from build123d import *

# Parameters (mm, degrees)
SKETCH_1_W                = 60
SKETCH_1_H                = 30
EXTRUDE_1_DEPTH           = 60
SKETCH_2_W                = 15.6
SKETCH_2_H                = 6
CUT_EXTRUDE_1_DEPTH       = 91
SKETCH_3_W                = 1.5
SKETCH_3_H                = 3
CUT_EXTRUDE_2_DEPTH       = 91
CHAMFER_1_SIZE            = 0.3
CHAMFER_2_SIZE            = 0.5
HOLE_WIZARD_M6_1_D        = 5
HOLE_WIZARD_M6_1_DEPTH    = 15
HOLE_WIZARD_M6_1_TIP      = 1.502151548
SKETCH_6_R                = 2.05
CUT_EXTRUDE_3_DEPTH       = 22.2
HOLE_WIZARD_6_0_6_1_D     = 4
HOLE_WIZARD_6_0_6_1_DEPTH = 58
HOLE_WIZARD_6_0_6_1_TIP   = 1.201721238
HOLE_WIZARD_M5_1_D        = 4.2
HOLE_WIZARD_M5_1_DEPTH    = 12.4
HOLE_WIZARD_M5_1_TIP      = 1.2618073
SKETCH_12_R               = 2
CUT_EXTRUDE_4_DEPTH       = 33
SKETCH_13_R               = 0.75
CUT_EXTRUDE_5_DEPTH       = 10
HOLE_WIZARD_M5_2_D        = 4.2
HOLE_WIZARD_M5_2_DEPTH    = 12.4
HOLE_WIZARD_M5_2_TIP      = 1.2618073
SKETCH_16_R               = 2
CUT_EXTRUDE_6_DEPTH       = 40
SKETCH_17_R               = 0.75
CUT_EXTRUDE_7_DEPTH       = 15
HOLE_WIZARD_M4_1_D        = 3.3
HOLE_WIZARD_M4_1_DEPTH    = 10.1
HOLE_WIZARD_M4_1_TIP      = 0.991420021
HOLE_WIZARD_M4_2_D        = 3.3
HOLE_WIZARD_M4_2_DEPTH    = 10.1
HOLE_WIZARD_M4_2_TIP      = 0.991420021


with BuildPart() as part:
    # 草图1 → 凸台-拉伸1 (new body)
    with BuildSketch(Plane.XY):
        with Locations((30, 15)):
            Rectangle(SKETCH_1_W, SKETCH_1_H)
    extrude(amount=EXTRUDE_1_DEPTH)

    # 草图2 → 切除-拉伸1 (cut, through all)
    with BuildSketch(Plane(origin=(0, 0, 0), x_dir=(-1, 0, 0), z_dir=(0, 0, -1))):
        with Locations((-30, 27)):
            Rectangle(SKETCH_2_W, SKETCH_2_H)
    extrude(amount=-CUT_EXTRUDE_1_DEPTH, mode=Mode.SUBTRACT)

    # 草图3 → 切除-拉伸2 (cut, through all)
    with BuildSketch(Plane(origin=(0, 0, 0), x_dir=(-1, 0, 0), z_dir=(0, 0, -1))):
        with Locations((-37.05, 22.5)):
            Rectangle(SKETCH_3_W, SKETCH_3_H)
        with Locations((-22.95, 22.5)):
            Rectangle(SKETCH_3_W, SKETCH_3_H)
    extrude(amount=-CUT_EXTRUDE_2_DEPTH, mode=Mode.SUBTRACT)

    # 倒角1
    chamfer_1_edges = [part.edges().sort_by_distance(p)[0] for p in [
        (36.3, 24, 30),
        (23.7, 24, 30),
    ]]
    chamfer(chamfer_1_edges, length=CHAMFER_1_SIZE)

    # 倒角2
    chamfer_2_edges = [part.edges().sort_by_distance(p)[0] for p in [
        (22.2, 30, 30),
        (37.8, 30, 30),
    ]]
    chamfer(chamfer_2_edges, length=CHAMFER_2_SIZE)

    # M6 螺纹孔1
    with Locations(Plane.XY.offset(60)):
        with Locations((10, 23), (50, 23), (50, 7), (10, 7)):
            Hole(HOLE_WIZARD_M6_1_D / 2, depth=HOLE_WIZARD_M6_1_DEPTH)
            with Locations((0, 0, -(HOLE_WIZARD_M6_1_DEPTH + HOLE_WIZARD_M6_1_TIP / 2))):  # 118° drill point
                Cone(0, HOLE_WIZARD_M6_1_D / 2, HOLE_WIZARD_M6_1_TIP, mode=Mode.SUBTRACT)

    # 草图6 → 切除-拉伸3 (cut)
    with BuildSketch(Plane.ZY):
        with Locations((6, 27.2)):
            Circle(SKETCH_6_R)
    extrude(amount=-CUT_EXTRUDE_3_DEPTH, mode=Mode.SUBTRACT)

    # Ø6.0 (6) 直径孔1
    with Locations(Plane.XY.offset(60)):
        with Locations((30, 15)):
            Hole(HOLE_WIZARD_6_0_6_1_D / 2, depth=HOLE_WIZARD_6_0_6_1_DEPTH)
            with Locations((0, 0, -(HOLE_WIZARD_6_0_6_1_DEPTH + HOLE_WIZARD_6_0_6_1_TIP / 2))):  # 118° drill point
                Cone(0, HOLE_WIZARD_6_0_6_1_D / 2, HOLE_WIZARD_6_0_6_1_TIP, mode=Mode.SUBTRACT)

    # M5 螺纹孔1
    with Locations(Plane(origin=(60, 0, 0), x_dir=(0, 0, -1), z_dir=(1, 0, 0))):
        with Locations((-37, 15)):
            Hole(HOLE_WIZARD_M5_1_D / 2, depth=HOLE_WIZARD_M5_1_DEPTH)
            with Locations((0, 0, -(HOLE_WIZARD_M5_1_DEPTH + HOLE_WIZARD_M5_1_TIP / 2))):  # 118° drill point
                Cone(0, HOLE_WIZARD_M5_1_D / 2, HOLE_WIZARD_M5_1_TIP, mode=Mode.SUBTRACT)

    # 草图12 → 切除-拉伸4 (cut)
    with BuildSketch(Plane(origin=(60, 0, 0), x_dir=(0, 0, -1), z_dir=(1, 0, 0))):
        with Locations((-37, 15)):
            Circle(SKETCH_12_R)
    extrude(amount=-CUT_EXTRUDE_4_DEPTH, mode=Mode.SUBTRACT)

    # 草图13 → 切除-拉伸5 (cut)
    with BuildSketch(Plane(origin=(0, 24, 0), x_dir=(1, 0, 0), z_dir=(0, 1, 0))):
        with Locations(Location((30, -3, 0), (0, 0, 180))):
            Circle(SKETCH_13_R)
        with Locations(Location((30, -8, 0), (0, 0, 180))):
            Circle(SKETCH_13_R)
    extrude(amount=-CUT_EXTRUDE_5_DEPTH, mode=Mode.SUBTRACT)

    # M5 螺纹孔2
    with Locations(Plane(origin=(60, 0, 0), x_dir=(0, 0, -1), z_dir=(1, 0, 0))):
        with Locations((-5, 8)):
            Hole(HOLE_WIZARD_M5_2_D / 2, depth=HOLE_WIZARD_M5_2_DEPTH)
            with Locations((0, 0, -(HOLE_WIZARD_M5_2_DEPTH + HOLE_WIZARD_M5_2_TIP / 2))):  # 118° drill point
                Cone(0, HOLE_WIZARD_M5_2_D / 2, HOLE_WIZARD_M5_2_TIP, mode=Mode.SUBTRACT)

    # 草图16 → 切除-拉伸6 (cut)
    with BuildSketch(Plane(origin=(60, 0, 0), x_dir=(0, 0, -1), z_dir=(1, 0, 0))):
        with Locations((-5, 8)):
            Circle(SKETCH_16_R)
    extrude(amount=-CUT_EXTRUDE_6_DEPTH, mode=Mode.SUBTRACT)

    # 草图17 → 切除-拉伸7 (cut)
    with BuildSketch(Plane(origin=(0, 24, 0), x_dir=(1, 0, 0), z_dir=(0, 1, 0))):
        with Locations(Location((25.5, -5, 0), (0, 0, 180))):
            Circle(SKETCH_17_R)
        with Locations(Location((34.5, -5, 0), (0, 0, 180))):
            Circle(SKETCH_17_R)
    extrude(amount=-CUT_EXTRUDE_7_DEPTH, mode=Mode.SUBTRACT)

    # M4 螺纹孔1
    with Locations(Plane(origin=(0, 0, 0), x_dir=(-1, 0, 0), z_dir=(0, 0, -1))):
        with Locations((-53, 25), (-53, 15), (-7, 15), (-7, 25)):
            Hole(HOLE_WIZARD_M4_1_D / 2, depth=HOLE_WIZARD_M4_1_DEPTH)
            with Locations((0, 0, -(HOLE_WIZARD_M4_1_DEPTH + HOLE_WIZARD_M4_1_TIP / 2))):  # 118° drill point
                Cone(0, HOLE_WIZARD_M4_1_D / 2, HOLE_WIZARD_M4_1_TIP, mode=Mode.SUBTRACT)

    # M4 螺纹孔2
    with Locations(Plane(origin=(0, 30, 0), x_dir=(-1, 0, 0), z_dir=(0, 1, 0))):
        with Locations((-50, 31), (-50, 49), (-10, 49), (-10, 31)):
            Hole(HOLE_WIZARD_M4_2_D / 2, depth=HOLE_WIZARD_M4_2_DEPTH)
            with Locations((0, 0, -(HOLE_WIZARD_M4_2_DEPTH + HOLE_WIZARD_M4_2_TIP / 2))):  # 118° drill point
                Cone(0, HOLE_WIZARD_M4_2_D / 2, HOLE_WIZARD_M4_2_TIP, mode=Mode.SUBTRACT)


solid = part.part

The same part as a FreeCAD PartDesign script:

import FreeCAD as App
import Part
import Sketcher
Q = App.Units.Quantity


def edges_at(feature, points):
    """Names of the edges that pass closest to the given points."""
    edges = feature.Shape.Edges
    near = lambda p: min(range(len(edges)), key=lambda i: edges[i].distToShape(Part.Vertex(*p))[0])
    return sorted({f"Edge{near(p) + 1}" for p in points})

doc = App.newDocument("Part")
params = doc.addObject("Spreadsheet::Sheet", "Params")
for row, (alias, value) in enumerate([
    ("sketch1_width", "60 mm"),
    ("sketch1_height", "30 mm"),
    ("pad1_length", "60 mm"),
    ("sketch2_height", "6 mm"),
    ("sketch2_width", "15.6 mm"),
    ("sketch3_height", "3 mm"),
    ("sketch3_width", "1.5 mm"),
    ("chamfer_size", "0.3 mm"),
    ("chamfer2_size", "0.5 mm"),
    ("sketch4_diameter", "5 mm"),
    ("hole_diameter", "5 mm"),
    ("hole_depth", "15 mm"),
    ("sketch5_diameter", "4.1 mm"),
    ("pocket3_length", "22.2 mm"),
    ("sketch6_diameter", "4 mm"),
    ("hole2_diameter", "4 mm"),
    ("hole2_depth", "58 mm"),
    ("sketch7_diameter", "4.2 mm"),
    ("hole3_diameter", "4.2 mm"),
    ("hole3_depth", "12.4 mm"),
    ("sketch8_diameter", "4 mm"),
    ("pocket4_length", "33 mm"),
    ("sketch9_diameter", "1.5 mm"),
    ("pocket5_length", "10 mm"),
    ("sketch10_diameter", "4.2 mm"),
    ("hole4_diameter", "4.2 mm"),
    ("hole4_depth", "12.4 mm"),
    ("sketch11_diameter", "4 mm"),
    ("pocket6_length", "40 mm"),
    ("sketch12_diameter", "1.5 mm"),
    ("pocket7_length", "15 mm"),
    ("sketch13_diameter", "3.3 mm"),
    ("hole5_diameter", "3.3 mm"),
    ("hole5_depth", "10.1 mm"),
    ("sketch14_diameter", "3.3 mm"),
    ("hole6_diameter", "3.3 mm"),
    ("hole6_depth", "10.1 mm"),
], start=1):
    params.set(f"A{row}", alias)
    params.set(f"B{row}", "=" + value)
    params.setAlias(f"B{row}", alias)

body = doc.addObject("PartDesign::Body", "Body")

sketch1 = body.newObject("Sketcher::SketchObject", "Sketch")
sketch1.AttachmentSupport = (doc.getObject("XY_Plane"), [""])
sketch1.MapMode = "FlatFace"
sketch1.addGeometry([
    Part.LineSegment(App.Vector(0, 30, 0), App.Vector(0, 0, 0)),
    Part.LineSegment(App.Vector(0, 0, 0), App.Vector(60, 0, 0)),
    Part.LineSegment(App.Vector(60, 0, 0), App.Vector(60, 30, 0)),
    Part.LineSegment(App.Vector(60, 30, 0), App.Vector(0, 30, 0)),
], False)
sketch1.addConstraint([
    Sketcher.Constraint("Coincident", 0, 2, 1, 1),
    Sketcher.Constraint("Coincident", 1, 2, 2, 1),
    Sketcher.Constraint("Coincident", 2, 2, 3, 1),
    Sketcher.Constraint("Coincident", 3, 2, 0, 1),
    Sketcher.Constraint("Vertical", 0),
    Sketcher.Constraint("Horizontal", 1),
    Sketcher.Constraint("Vertical", 2),
    Sketcher.Constraint("Horizontal", 3),
    Sketcher.Constraint("Coincident", 0, 2, -1, 1),
    Sketcher.Constraint("DistanceX", 1, 1, 1, 2, Q("60 mm")),
    Sketcher.Constraint("DistanceY", 0, 2, 0, 1, Q("30 mm")),
])
sketch1.setExpression("Constraints[9]", "Params.sketch1_width")
sketch1.setExpression("Constraints[10]", "Params.sketch1_height")
pad1 = body.newObject("PartDesign::Pad", "Pad")
pad1.Profile = sketch1
pad1.setExpression("Length", "Params.pad1_length")

sketch2 = body.newObject("Sketcher::SketchObject", "Sketch001")
sketch2.AttachmentSupport = (doc.getObject("XY_Plane"), [""])
sketch2.MapMode = "FlatFace"
sketch2.addGeometry([
    Part.LineSegment(App.Vector(38, 30, 0), App.Vector(38, 24, 0)),
    Part.LineSegment(App.Vector(38, 24, 0), App.Vector(22, 24, 0)),
    Part.LineSegment(App.Vector(22, 24, 0), App.Vector(22, 30, 0)),
    Part.LineSegment(App.Vector(22, 30, 0), App.Vector(38, 30, 0)),
], False)
sketch2.addConstraint([
    Sketcher.Constraint("Coincident", 0, 2, 1, 1),
    Sketcher.Constraint("Coincident", 1, 2, 2, 1),
    Sketcher.Constraint("Coincident", 2, 2, 3, 1),
    Sketcher.Constraint("Coincident", 3, 2, 0, 1),
    Sketcher.Constraint("Vertical", 0),
    Sketcher.Constraint("Horizontal", 1),
    Sketcher.Constraint("Vertical", 2),
    Sketcher.Constraint("Horizontal", 3),
    Sketcher.Constraint("DistanceY", 0, 2, 0, 1, Q("6 mm")),
    Sketcher.Constraint("DistanceX", 1, 2, 1, 1, Q("15.6 mm")),
    Sketcher.Constraint("DistanceY", -1, 1, 0, 2, Q("24 mm")),
    Sketcher.Constraint("DistanceX", -1, 1, 0, 2, Q("37.8 mm")),
])
sketch2.setExpression("Constraints[8]", "Params.sketch2_height")
sketch2.setExpression("Constraints[9]", "Params.sketch2_width")
pocket1 = body.newObject("PartDesign::Pocket", "Pocket")
pocket1.Profile = sketch2
pocket1.Type = "ThroughAll"
pocket1.Reversed = True

sketch3 = body.newObject("Sketcher::SketchObject", "Sketch002")
sketch3.AttachmentSupport = (doc.getObject("XY_Plane"), [""])
sketch3.MapMode = "FlatFace"
sketch3.addGeometry([
    Part.LineSegment(App.Vector(37.8, 24, 0), App.Vector(37.8, 21, 0)),
    Part.LineSegment(App.Vector(37.8, 21, 0), App.Vector(36.3, 21, 0)),
    Part.LineSegment(App.Vector(36.3, 21, 0), App.Vector(36.3, 24, 0)),
    Part.LineSegment(App.Vector(36.3, 24, 0), App.Vector(37.8, 24, 0)),
    Part.LineSegment(App.Vector(23.7, 24, 0), App.Vector(23.7, 21, 0)),
    Part.LineSegment(App.Vector(23.7, 21, 0), App.Vector(22.2, 21, 0)),
    Part.LineSegment(App.Vector(22.2, 21, 0), App.Vector(22.2, 24, 0)),
    Part.LineSegment(App.Vector(22.2, 24, 0), App.Vector(23.7, 24, 0)),
], False)
sketch3.addConstraint([
    Sketcher.Constraint("Coincident", 0, 2, 1, 1),
    Sketcher.Constraint("Coincident", 1, 2, 2, 1),
    Sketcher.Constraint("Coincident", 2, 2, 3, 1),
    Sketcher.Constraint("Coincident", 3, 2, 0, 1),
    Sketcher.Constraint("Coincident", 4, 2, 5, 1),
    Sketcher.Constraint("Coincident", 5, 2, 6, 1),
    Sketcher.Constraint("Coincident", 6, 2, 7, 1),
    Sketcher.Constraint("Coincident", 7, 2, 4, 1),
    Sketcher.Constraint("Vertical", 0),
    Sketcher.Constraint("Horizontal", 1),
    Sketcher.Constraint("Vertical", 2),
    Sketcher.Constraint("Horizontal", 3),
    Sketcher.Constraint("Vertical", 4),
    Sketcher.Constraint("Horizontal", 5),
    Sketcher.Constraint("Vertical", 6),
    Sketcher.Constraint("Horizontal", 7),
    Sketcher.Constraint("Horizontal", 1, 2, 4, 2),
    Sketcher.Constraint("Horizontal", 3, 2, 6, 2),
    Sketcher.Constraint("Equal", 3, 5),
    Sketcher.Constraint("DistanceY", 0, 2, 0, 1, Q("3 mm")),
    Sketcher.Constraint("DistanceX", 1, 2, 1, 1, Q("1.5 mm")),
    Sketcher.Constraint("DistanceY", -1, 1, 0, 2, Q("21 mm")),
    Sketcher.Constraint("DistanceX", -1, 1, 0, 2, Q("37.8 mm")),
    Sketcher.Constraint("DistanceX", -1, 1, 4, 2, Q("23.7 mm")),
])
sketch3.setExpression("Constraints[19]", "Params.sketch3_height")
sketch3.setExpression("Constraints[20]", "Params.sketch3_width")
pocket2 = body.newObject("PartDesign::Pocket", "Pocket001")
pocket2.Profile = sketch3
pocket2.Type = "ThroughAll"
pocket2.Reversed = True
doc.recompute()

chamfer = body.newObject("PartDesign::Chamfer", "Chamfer")
chamfer.Base = (pocket2, edges_at(pocket2, [(36.3, 24, 30), (23.7, 24, 30)]))
chamfer.setExpression("Size", "Params.chamfer_size")
doc.recompute()

chamfer2 = body.newObject("PartDesign::Chamfer", "Chamfer001")
chamfer2.Base = (chamfer, edges_at(chamfer, [(22.2, 30, 30), (37.8, 30, 30)]))
chamfer2.setExpression("Size", "Params.chamfer2_size")

sketch4 = body.newObject("Sketcher::SketchObject", "Sketch003")
sketch4.AttachmentSupport = (doc.getObject("XY_Plane"), [""])
sketch4.MapMode = "FlatFace"
sketch4.AttachmentOffset = App.Placement(App.Vector(0, 0, 60), App.Rotation())
sketch4.addGeometry([
    Part.Circle(App.Vector(10, 23, 0), App.Vector(0, 0, 1), 2.5),
    Part.Circle(App.Vector(50, 23, 0), App.Vector(0, 0, 1), 2.5),
    Part.Circle(App.Vector(50, 7, 0), App.Vector(0, 0, 1), 2.5),
    Part.Circle(App.Vector(10, 7, 0), App.Vector(0, 0, 1), 2.5),
], False)
sketch4.addConstraint([
    Sketcher.Constraint("Equal", 0, 1),
    Sketcher.Constraint("Equal", 1, 2),
    Sketcher.Constraint("Equal", 2, 3),
    Sketcher.Constraint("Horizontal", 0, 3, 1, 3),
    Sketcher.Constraint("Horizontal", 2, 3, 3, 3),
    Sketcher.Constraint("Vertical", 1, 3, 2, 3),
    Sketcher.Constraint("Vertical", 0, 3, 3, 3),
    Sketcher.Constraint("Diameter", 0, Q("5 mm")),
    Sketcher.Constraint("DistanceX", -1, 1, 0, 3, Q("10 mm")),
    Sketcher.Constraint("DistanceY", -1, 1, 0, 3, Q("23 mm")),
    Sketcher.Constraint("DistanceX", -1, 1, 1, 3, Q("50 mm")),
    Sketcher.Constraint("DistanceY", -1, 1, 2, 3, Q("7 mm")),
])
sketch4.setExpression("Constraints[7]", "Params.sketch4_diameter")
doc.recompute()
hole = body.newObject("PartDesign::Hole", "Hole")
hole.Profile = sketch4
hole.ThreadType = "None"
hole.setExpression("Diameter", "Params.hole_diameter")
hole.DepthType = "Dimension"
hole.setExpression("Depth", "Params.hole_depth")
hole.DrillPoint = "Angled"
hole.DrillPointAngle = 118

sketch5 = body.newObject("Sketcher::SketchObject", "Sketch004")
sketch5.AttachmentSupport = (doc.getObject("YZ_Plane"), [""])
sketch5.MapMode = "FlatFace"
sketch5.addGeometry(Part.Circle(App.Vector(27.2, 6, 0), App.Vector(0, 0, 1), 2), False)
sketch5.addConstraint([
    Sketcher.Constraint("Diameter", 0, Q("4.1 mm")),
    Sketcher.Constraint("DistanceY", -1, 1, 0, 3, Q("6 mm")),
    Sketcher.Constraint("DistanceX", -1, 1, 0, 3, Q("27.2 mm")),
])
sketch5.setExpression("Constraints[0]", "Params.sketch5_diameter")
pocket3 = body.newObject("PartDesign::Pocket", "Pocket002")
pocket3.Profile = sketch5
pocket3.setExpression("Length", "Params.pocket3_length")
pocket3.Reversed = True

sketch6 = body.newObject("Sketcher::SketchObject", "Sketch005")
sketch6.AttachmentSupport = (doc.getObject("XY_Plane"), [""])
sketch6.MapMode = "FlatFace"
sketch6.AttachmentOffset = App.Placement(App.Vector(0, 0, 60), App.Rotation())
sketch6.addGeometry(Part.Circle(App.Vector(30, 15, 0), App.Vector(0, 0, 1), 2), False)
sketch6.addConstraint([
    Sketcher.Constraint("Diameter", 0, Q("4 mm")),
    Sketcher.Constraint("DistanceX", -1, 1, 0, 3, Q("30 mm")),
    Sketcher.Constraint("DistanceY", -1, 1, 0, 3, Q("15 mm")),
])
sketch6.setExpression("Constraints[0]", "Params.sketch6_diameter")
doc.recompute()
hole2 = body.newObject("PartDesign::Hole", "Hole001")
hole2.Profile = sketch6
hole2.ThreadType = "None"
hole2.setExpression("Diameter", "Params.hole2_diameter")
hole2.DepthType = "Dimension"
hole2.setExpression("Depth", "Params.hole2_depth")
hole2.DrillPoint = "Angled"
hole2.DrillPointAngle = 118

sketch7 = body.newObject("Sketcher::SketchObject", "Sketch006")
sketch7.AttachmentSupport = (doc.getObject("YZ_Plane"), [""])
sketch7.MapMode = "FlatFace"
sketch7.AttachmentOffset = App.Placement(App.Vector(0, 0, 60), App.Rotation())
sketch7.addGeometry(Part.Circle(App.Vector(15, 37, 0), App.Vector(0, 0, 1), 2.1), False)
sketch7.addConstraint([
    Sketcher.Constraint("Diameter", 0, Q("4.2 mm")),
    Sketcher.Constraint("DistanceX", -1, 1, 0, 3, Q("15 mm")),
    Sketcher.Constraint("DistanceY", -1, 1, 0, 3, Q("37 mm")),
])
sketch7.setExpression("Constraints[0]", "Params.sketch7_diameter")
doc.recompute()
hole3 = body.newObject("PartDesign::Hole", "Hole002")
hole3.Profile = sketch7
hole3.ThreadType = "None"
hole3.setExpression("Diameter", "Params.hole3_diameter")
hole3.DepthType = "Dimension"
hole3.setExpression("Depth", "Params.hole3_depth")
hole3.DrillPoint = "Angled"
hole3.DrillPointAngle = 118

sketch8 = body.newObject("Sketcher::SketchObject", "Sketch007")
sketch8.AttachmentSupport = (doc.getObject("YZ_Plane"), [""])
sketch8.MapMode = "FlatFace"
sketch8.AttachmentOffset = App.Placement(App.Vector(0, 0, 60), App.Rotation())
sketch8.addGeometry(Part.Circle(App.Vector(15, 37, 0), App.Vector(0, 0, 1), 2), False)
sketch8.addConstraint([
    Sketcher.Constraint("Diameter", 0, Q("4 mm")),
    Sketcher.Constraint("DistanceX", -1, 1, 0, 3, Q("15 mm")),
    Sketcher.Constraint("DistanceY", -1, 1, 0, 3, Q("37 mm")),
])
sketch8.setExpression("Constraints[0]", "Params.sketch8_diameter")
pocket4 = body.newObject("PartDesign::Pocket", "Pocket003")
pocket4.Profile = sketch8
pocket4.setExpression("Length", "Params.pocket4_length")

sketch9 = body.newObject("Sketcher::SketchObject", "Sketch008")
sketch9.AttachmentSupport = (doc.getObject("XZ_Plane"), [""])
sketch9.MapMode = "FlatFace"
sketch9.AttachmentOffset = App.Placement(App.Vector(0, 0, -24), App.Rotation())
sketch9.addGeometry([
    Part.Circle(App.Vector(30, 3, 0), App.Vector(0, 0, 1), 0.8),
    Part.Circle(App.Vector(30, 8, 0), App.Vector(0, 0, 1), 0.8),
], False)
sketch9.addConstraint([
    Sketcher.Constraint("Equal", 0, 1),
    Sketcher.Constraint("Vertical", 0, 3, 1, 3),
    Sketcher.Constraint("Diameter", 0, Q("1.5 mm")),
    Sketcher.Constraint("DistanceX", -1, 1, 0, 3, Q("30 mm")),
    Sketcher.Constraint("DistanceY", -1, 1, 0, 3, Q("3 mm")),
    Sketcher.Constraint("DistanceY", -1, 1, 1, 3, Q("8 mm")),
])
sketch9.setExpression("Constraints[2]", "Params.sketch9_diameter")
pocket5 = body.newObject("PartDesign::Pocket", "Pocket004")
pocket5.Profile = sketch9
pocket5.setExpression("Length", "Params.pocket5_length")
pocket5.Reversed = True

sketch10 = body.newObject("Sketcher::SketchObject", "Sketch009")
sketch10.AttachmentSupport = (doc.getObject("YZ_Plane"), [""])
sketch10.MapMode = "FlatFace"
sketch10.AttachmentOffset = App.Placement(App.Vector(0, 0, 60), App.Rotation())
sketch10.addGeometry(Part.Circle(App.Vector(8, 5, 0), App.Vector(0, 0, 1), 2.1), False)
sketch10.addConstraint([
    Sketcher.Constraint("Diameter", 0, Q("4.2 mm")),
    Sketcher.Constraint("DistanceX", -1, 1, 0, 3, Q("8 mm")),
    Sketcher.Constraint("DistanceY", -1, 1, 0, 3, Q("5 mm")),
])
sketch10.setExpression("Constraints[0]", "Params.sketch10_diameter")
doc.recompute()
hole4 = body.newObject("PartDesign::Hole", "Hole003")
hole4.Profile = sketch10
hole4.ThreadType = "None"
hole4.setExpression("Diameter", "Params.hole4_diameter")
hole4.DepthType = "Dimension"
hole4.setExpression("Depth", "Params.hole4_depth")
hole4.DrillPoint = "Angled"
hole4.DrillPointAngle = 118

sketch11 = body.newObject("Sketcher::SketchObject", "Sketch010")
sketch11.AttachmentSupport = (doc.getObject("YZ_Plane"), [""])
sketch11.MapMode = "FlatFace"
sketch11.AttachmentOffset = App.Placement(App.Vector(0, 0, 60), App.Rotation())
sketch11.addGeometry(Part.Circle(App.Vector(8, 5, 0), App.Vector(0, 0, 1), 2), False)
sketch11.addConstraint([
    Sketcher.Constraint("Diameter", 0, Q("4 mm")),
    Sketcher.Constraint("DistanceX", -1, 1, 0, 3, Q("8 mm")),
    Sketcher.Constraint("DistanceY", -1, 1, 0, 3, Q("5 mm")),
])
sketch11.setExpression("Constraints[0]", "Params.sketch11_diameter")
pocket6 = body.newObject("PartDesign::Pocket", "Pocket005")
pocket6.Profile = sketch11
pocket6.setExpression("Length", "Params.pocket6_length")

sketch12 = body.newObject("Sketcher::SketchObject", "Sketch011")
sketch12.AttachmentSupport = (doc.getObject("XZ_Plane"), [""])
sketch12.MapMode = "FlatFace"
sketch12.AttachmentOffset = App.Placement(App.Vector(0, 0, -24), App.Rotation())
sketch12.addGeometry([
    Part.Circle(App.Vector(25.5, 5, 0), App.Vector(0, 0, 1), 0.8),
    Part.Circle(App.Vector(34.5, 5, 0), App.Vector(0, 0, 1), 0.8),
], False)
sketch12.addConstraint([
    Sketcher.Constraint("Equal", 0, 1),
    Sketcher.Constraint("Horizontal", 0, 3, 1, 3),
    Sketcher.Constraint("Diameter", 0, Q("1.5 mm")),
    Sketcher.Constraint("DistanceY", -1, 1, 0, 3, Q("5 mm")),
    Sketcher.Constraint("DistanceX", 0, 3, 1, 3, Q("9 mm")),
    Sketcher.Constraint("DistanceX", -1, 1, 0, 3, Q("25.5 mm")),
])
sketch12.setExpression("Constraints[2]", "Params.sketch12_diameter")
pocket7 = body.newObject("PartDesign::Pocket", "Pocket006")
pocket7.Profile = sketch12
pocket7.setExpression("Length", "Params.pocket7_length")
pocket7.Reversed = True

sketch13 = body.newObject("Sketcher::SketchObject", "Sketch012")
sketch13.AttachmentSupport = (doc.getObject("XY_Plane"), [""])
sketch13.MapMode = "FlatFace"
sketch13.addGeometry([
    Part.Circle(App.Vector(53, 25, 0), App.Vector(0, 0, 1), 1.6),
    Part.Circle(App.Vector(53, 15, 0), App.Vector(0, 0, 1), 1.6),
    Part.Circle(App.Vector(7, 15, 0), App.Vector(0, 0, 1), 1.6),
    Part.Circle(App.Vector(7, 25, 0), App.Vector(0, 0, 1), 1.6),
], False)
sketch13.addConstraint([
    Sketcher.Constraint("Equal", 0, 1),
    Sketcher.Constraint("Equal", 1, 2),
    Sketcher.Constraint("Equal", 2, 3),
    Sketcher.Constraint("Horizontal", 1, 3, 2, 3),
    Sketcher.Constraint("Horizontal", 0, 3, 3, 3),
    Sketcher.Constraint("Vertical", 0, 3, 1, 3),
    Sketcher.Constraint("Vertical", 2, 3, 3, 3),
    Sketcher.Constraint("Diameter", 0, Q("3.3 mm")),
    Sketcher.Constraint("DistanceX", -1, 1, 0, 3, Q("53 mm")),
    Sketcher.Constraint("DistanceY", -1, 1, 0, 3, Q("25 mm")),
    Sketcher.Constraint("DistanceY", -1, 1, 1, 3, Q("15 mm")),
    Sketcher.Constraint("DistanceX", -1, 1, 2, 3, Q("7 mm")),
])
sketch13.setExpression("Constraints[7]", "Params.sketch13_diameter")
doc.recompute()
hole5 = body.newObject("PartDesign::Hole", "Hole004")
hole5.Profile = sketch13
hole5.ThreadType = "None"
hole5.setExpression("Diameter", "Params.hole5_diameter")
hole5.DepthType = "Dimension"
hole5.setExpression("Depth", "Params.hole5_depth")
hole5.DrillPoint = "Angled"
hole5.DrillPointAngle = 118
hole5.Reversed = True

sketch14 = body.newObject("Sketcher::SketchObject", "Sketch013")
sketch14.AttachmentSupport = (doc.getObject("XZ_Plane"), [""])
sketch14.MapMode = "FlatFace"
sketch14.AttachmentOffset = App.Placement(App.Vector(0, 0, -30), App.Rotation())
sketch14.addGeometry([
    Part.Circle(App.Vector(50, 31, 0), App.Vector(0, 0, 1), 1.6),
    Part.Circle(App.Vector(50, 49, 0), App.Vector(0, 0, 1), 1.6),
    Part.Circle(App.Vector(10, 49, 0), App.Vector(0, 0, 1), 1.6),
    Part.Circle(App.Vector(10, 31, 0), App.Vector(0, 0, 1), 1.6),
], False)
sketch14.addConstraint([
    Sketcher.Constraint("Equal", 0, 1),
    Sketcher.Constraint("Equal", 1, 2),
    Sketcher.Constraint("Equal", 2, 3),
    Sketcher.Constraint("Horizontal", 1, 3, 2, 3),
    Sketcher.Constraint("Horizontal", 0, 3, 3, 3),
    Sketcher.Constraint("Vertical", 0, 3, 1, 3),
    Sketcher.Constraint("Vertical", 2, 3, 3, 3),
    Sketcher.Constraint("Diameter", 0, Q("3.3 mm")),
    Sketcher.Constraint("DistanceX", -1, 1, 0, 3, Q("50 mm")),
    Sketcher.Constraint("DistanceY", -1, 1, 0, 3, Q("31 mm")),
    Sketcher.Constraint("DistanceY", -1, 1, 1, 3, Q("49 mm")),
    Sketcher.Constraint("DistanceX", -1, 1, 2, 3, Q("10 mm")),
])
sketch14.setExpression("Constraints[7]", "Params.sketch14_diameter")
doc.recompute()
hole6 = body.newObject("PartDesign::Hole", "Hole005")
hole6.Profile = sketch14
hole6.ThreadType = "None"
hole6.setExpression("Diameter", "Params.hole6_diameter")
hole6.DepthType = "Dimension"
hole6.setExpression("Depth", "Params.hole6_depth")
hole6.DrillPoint = "Angled"
hole6.DrillPointAngle = 118
hole6.Reversed = True

doc.recompute()
